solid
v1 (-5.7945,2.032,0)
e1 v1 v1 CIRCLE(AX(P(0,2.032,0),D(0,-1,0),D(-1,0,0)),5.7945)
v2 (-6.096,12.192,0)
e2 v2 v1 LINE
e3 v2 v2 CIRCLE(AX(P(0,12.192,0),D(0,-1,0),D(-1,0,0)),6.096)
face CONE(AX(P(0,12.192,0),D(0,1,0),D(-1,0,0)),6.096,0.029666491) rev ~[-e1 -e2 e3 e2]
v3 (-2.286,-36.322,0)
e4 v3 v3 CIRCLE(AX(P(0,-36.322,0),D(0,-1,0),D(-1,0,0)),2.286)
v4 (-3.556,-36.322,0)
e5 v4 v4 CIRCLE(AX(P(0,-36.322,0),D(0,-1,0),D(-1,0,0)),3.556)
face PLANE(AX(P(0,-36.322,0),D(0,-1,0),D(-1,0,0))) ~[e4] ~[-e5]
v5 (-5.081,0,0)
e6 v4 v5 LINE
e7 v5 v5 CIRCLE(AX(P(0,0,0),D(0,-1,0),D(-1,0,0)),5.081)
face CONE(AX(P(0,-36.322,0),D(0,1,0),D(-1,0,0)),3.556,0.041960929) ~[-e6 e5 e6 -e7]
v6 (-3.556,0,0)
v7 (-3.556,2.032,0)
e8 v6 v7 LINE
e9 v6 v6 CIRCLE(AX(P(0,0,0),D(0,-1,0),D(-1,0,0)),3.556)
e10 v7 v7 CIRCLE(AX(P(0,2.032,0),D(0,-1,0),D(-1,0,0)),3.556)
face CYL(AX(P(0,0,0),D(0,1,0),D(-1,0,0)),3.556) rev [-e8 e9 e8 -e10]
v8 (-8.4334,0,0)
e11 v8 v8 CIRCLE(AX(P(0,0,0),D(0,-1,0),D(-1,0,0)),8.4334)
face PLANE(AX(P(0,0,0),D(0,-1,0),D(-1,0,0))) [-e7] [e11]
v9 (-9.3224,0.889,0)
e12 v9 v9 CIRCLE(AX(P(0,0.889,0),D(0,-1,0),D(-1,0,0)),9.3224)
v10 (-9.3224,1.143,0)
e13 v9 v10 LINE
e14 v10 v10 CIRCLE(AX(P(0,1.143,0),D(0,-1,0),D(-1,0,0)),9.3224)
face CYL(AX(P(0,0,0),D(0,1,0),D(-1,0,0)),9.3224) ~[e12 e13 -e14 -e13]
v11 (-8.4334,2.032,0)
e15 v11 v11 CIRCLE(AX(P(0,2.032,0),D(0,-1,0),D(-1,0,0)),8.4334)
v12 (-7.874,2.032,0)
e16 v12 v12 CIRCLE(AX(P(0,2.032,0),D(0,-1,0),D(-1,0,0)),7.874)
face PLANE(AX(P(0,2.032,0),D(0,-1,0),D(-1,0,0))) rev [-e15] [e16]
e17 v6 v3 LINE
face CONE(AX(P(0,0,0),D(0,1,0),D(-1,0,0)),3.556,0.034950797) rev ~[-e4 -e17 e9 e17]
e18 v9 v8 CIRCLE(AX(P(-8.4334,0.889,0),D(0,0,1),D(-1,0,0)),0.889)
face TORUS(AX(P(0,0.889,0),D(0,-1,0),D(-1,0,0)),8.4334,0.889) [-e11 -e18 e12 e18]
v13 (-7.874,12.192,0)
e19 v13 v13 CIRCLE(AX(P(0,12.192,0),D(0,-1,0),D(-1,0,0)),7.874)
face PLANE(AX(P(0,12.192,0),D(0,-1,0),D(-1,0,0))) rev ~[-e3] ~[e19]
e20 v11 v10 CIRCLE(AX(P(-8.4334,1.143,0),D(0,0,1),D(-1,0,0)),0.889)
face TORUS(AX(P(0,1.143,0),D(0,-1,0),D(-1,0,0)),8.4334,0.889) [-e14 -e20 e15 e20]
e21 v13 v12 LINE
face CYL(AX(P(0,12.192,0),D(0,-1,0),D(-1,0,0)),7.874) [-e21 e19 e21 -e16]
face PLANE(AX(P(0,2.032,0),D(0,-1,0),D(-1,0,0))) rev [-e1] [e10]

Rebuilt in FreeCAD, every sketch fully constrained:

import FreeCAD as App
import Part
import Sketcher
from FreeCAD import Vector
Q = App.Units.Quantity


def edges_at(feature, points):
    """Names of the edges that pass closest to the given points."""
    edges = feature.Shape.Edges
    near = lambda p: min(range(len(edges)), key=lambda i: edges[i].distToShape(Part.Vertex(*p))[0])
    return sorted({f"Edge{near(p) + 1}" for p in points})


def add_polygon(sketch, points):
    """Adds a closed chain of lines whose ends are joined by coincident constraints."""
    first, n = sketch.GeometryCount, len(points)
    for a, b in zip(points, points[1:] + points[:1]):
        sketch.addGeometry(Part.LineSegment(App.Vector(*a, 0), App.Vector(*b, 0)), False)
    for i in range(n):
        sketch.addConstraint(Sketcher.Constraint("Coincident", first + i, 2, first + (i + 1) % n, 1))

doc = App.newDocument("Part")
body = doc.addObject("PartDesign::Body", "Body")

# Sketch on XY plane
sketch1 = body.newObject("Sketcher::SketchObject", "Sketch")
sketch1.AttachmentSupport = (doc.getObject("XY_Plane"), [""])
sketch1.MapMode = "FlatFace"
add_polygon(sketch1, [(0, 12.2), (-7.9, 12.2), (-7.9, 2), (-9.3, 2), (-9.3, 0), (-5.1, 0), (-3.6, -36.3), (0, -36.3)])  # lines 0-7
sketch1.addConstraint([
    Sketcher.Constraint("Horizontal", 0),
    Sketcher.Constraint("Vertical", 1),
    Sketcher.Constraint("Horizontal", 2),
    Sketcher.Constraint("Vertical", 3),
    Sketcher.Constraint("Horizontal", 4),
    Sketcher.Constraint("Horizontal", 6),
    Sketcher.Constraint("Vertical", 7),
    Sketcher.Constraint("PointOnObject", 3, 2, -1),
    Sketcher.Constraint("PointOnObject", 6, 2, -2),
    Sketcher.Constraint("DistanceY", 1, 2, 1, 1, Q("0.4 in")),
    Sketcher.Constraint("DistanceX", 6, 1, 6, 2, Q("0.14 in")),
    Sketcher.Constraint("DistanceY", 3, 2, 3, 1, Q("0.08 in")),
    Sketcher.Constraint("DistanceX", 0, 2, 0, 1, Q("0.31 in")),
    Sketcher.Constraint("DistanceY", 7, 1, 7, 2, Q("1.91 in")),
    Sketcher.Constraint("DistanceX", 2, 2, 2, 1, Q("1.4484 mm")),
    Sketcher.Constraint("DistanceX", 4, 1, 4, 2, Q("4.2414 mm")),
])
revolution = body.newObject("PartDesign::Revolution", "Revolution")
revolution.Profile = sketch1
revolution.ReferenceAxis = (sketch1, ["V_Axis"])
revolution.Angle = 360

# Sketch on XY plane
sketch2 = body.newObject("Sketcher::SketchObject", "Sketch001")
sketch2.AttachmentSupport = (doc.getObject("XY_Plane"), [""])
sketch2.MapMode = "FlatFace"
add_polygon(sketch2, [(0, -36.3), (0, 12.2), (-6.1, 12.2), (-5.8, 2), (-3.6, 2), (-3.6, 0), (-2.3, -36.3)])  # lines 0-6
sketch2.addConstraint([
    Sketcher.Constraint("Vertical", 0),
    Sketcher.Constraint("Horizontal", 1),
    Sketcher.Constraint("Horizontal", 3),
    Sketcher.Constraint("Vertical", 4),
    Sketcher.Constraint("Horizontal", 6),
    Sketcher.Constraint("PointOnObject", 0, 2, -2),
    Sketcher.Constraint("PointOnObject", 4, 2, -1),
    Sketcher.Constraint("DistanceX", 1, 2, 1, 1, Q("0.24 in")),
    Sketcher.Constraint("DistanceX", 6, 1, 6, 2, Q("0.09 in")),
    Sketcher.Constraint("DistanceY", 4, 2, 4, 1, Q("0.08 in")),
    Sketcher.Constraint("Angle", 2, Q("-88.3002 deg")),
    Sketcher.Constraint("DistanceX", 3, 2, -1, 1, Q("0.14 in")),
    Sketcher.Constraint("DistanceY", 5, 2, -1, 1, Q("1.43 in")),
    Sketcher.Constraint("DistanceY", 0, 1, 0, 2, Q("1.91 in")),
])
groove = body.newObject("PartDesign::Groove", "Groove")
groove.Profile = sketch2
groove.ReferenceAxis = (sketch2, ["V_Axis"])
groove.Angle = 360
doc.recompute()

fillet = body.newObject("PartDesign::Fillet", "Fillet")
fillet.Base = (groove, edges_at(groove, [(-8.691, 2.032, 3.371), (-8.691, 0, 3.371)]))
fillet.Radius = Q("0.035 in")

doc.recompute()
